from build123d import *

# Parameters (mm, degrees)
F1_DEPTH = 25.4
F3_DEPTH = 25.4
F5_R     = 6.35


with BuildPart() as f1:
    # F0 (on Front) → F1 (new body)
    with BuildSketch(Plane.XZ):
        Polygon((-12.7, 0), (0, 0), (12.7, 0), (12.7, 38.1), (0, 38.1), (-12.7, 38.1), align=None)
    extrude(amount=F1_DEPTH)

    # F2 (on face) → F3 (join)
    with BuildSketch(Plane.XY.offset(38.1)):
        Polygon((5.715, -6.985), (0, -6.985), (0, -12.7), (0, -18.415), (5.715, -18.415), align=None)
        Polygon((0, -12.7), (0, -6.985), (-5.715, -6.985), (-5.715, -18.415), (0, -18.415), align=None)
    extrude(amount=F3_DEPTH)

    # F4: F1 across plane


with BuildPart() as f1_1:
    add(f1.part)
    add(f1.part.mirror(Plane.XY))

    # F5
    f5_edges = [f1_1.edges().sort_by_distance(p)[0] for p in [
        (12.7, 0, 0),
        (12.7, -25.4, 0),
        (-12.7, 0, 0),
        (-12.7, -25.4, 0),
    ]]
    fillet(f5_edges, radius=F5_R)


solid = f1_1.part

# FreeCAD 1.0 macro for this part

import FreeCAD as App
import Part
import Sketcher
Q = App.Units.Quantity


def edges_at(feature, points):
    """Names of the edges that pass closest to the given points."""
    edges = feature.Shape.Edges
    near = lambda p: min(range(len(edges)), key=lambda i: edges[i].distToShape(Part.Vertex(*p))[0])
    return sorted({f"Edge{near(p) + 1}" for p in points})

doc = App.newDocument("Part")
body = doc.addObject("PartDesign::Body", "Body")

# Sketch on XZ plane
sketch1 = body.newObject("Sketcher::SketchObject", "Sketch")
sketch1.AttachmentSupport = (doc.getObject("XZ_Plane"), [""])
sketch1.MapMode = "FlatFace"
sketch1.addGeometry([
    Part.LineSegment(App.Vector(-13, 0, 0), App.Vector(13, 0, 0)),
    Part.LineSegment(App.Vector(13, 0, 0), App.Vector(13, 38, 0)),
    Part.LineSegment(App.Vector(13, 38, 0), App.Vector(-13, 38, 0)),
    Part.LineSegment(App.Vector(-13, 38, 0), App.Vector(-13, 0, 0)),
], False)
sketch1.addConstraint([
    Sketcher.Constraint("Coincident", 0, 2, 1, 1),
    Sketcher.Constraint("Coincident", 1, 2, 2, 1),
    Sketcher.Constraint("Coincident", 2, 2, 3, 1),
    Sketcher.Constraint("Coincident", 3, 2, 0, 1),
    Sketcher.Constraint("Horizontal", 0),
    Sketcher.Constraint("Vertical", 1),
    Sketcher.Constraint("Horizontal", 2),
    Sketcher.Constraint("Vertical", 3),
    Sketcher.Constraint("Symmetric", 0, 2, 3, 2, -1, 1),
    Sketcher.Constraint("DistanceX", 0, 1, 0, 2, Q("1 in")),
    Sketcher.Constraint("DistanceY", 1, 1, 1, 2, Q("1.5 in")),
])
pad1 = body.newObject("PartDesign::Pad", "Pad")
pad1.Profile = sketch1
pad1.Length = Q("1 in")

# Sketch on XY plane
sketch2 = body.newObject("Sketcher::SketchObject", "Sketch001")
sketch2.AttachmentSupport = (doc.getObject("XY_Plane"), [""])
sketch2.MapMode = "FlatFace"
sketch2.AttachmentOffset = App.Placement(App.Vector(0, 0, 1.5 * 25.4), App.Rotation())
sketch2.addGeometry([
    Part.LineSegment(App.Vector(6, -7, 0), App.Vector(-6, -7, 0)),
    Part.LineSegment(App.Vector(-6, -7, 0), App.Vector(-6, -18, 0)),
    Part.LineSegment(App.Vector(-6, -18, 0), App.Vector(6, -18, 0)),
    Part.LineSegment(App.Vector(6, -18, 0), App.Vector(6, -7, 0)),
], False)
sketch2.addConstraint([
    Sketcher.Constraint("Coincident", 0, 2, 1, 1),
    Sketcher.Constraint("Coincident", 1, 2, 2, 1),
    Sketcher.Constraint("Coincident", 2, 2, 3, 1),
    Sketcher.Constraint("Coincident", 3, 2, 0, 1),
    Sketcher.Constraint("Horizontal", 0),
    Sketcher.Constraint("Vertical", 1),
    Sketcher.Constraint("Horizontal", 2),
    Sketcher.Constraint("Vertical", 3),
    Sketcher.Constraint("Equal", 2, 1),
    Sketcher.Constraint("DistanceX", 0, 2, 0, 1, Q("0.45 in")),
    Sketcher.Constraint("DistanceX", 0, 2, -1, 1, Q("0.225 in")),
    Sketcher.Constraint("DistanceY", 0, 2, -1, 1, Q("0.275 in")),
])
pad2 = body.newObject("PartDesign::Pad", "Pad001")
pad2.Profile = sketch2
pad2.Length = Q("1 in")
body2 = doc.addObject("PartDesign::Body", "Body001")
doc.recompute()

body2.BaseFeature = body
doc.recompute()

mirroring = doc.addObject("Part::Mirroring", "Mirroring")
mirroring.Source = body
mirroring.Base = App.Vector(0, 0, 0)
mirroring.Normal = App.Vector(0, 0, 1)
body3 = doc.addObject("PartDesign::Body", "Body002")
body3.BaseFeature = mirroring
boolean = body2.newObject("PartDesign::Boolean", "Boolean")
boolean.Type = "Fuse"
boolean.addObjects([body3])
doc.recompute()

fillet = body2.newObject("PartDesign::Fillet", "Fillet")
fillet.Base = (boolean, edges_at(boolean, [
    (12.7, 0, 0),
    (12.7, -25.4, 0),
    (-12.7, 0, 0),
    (-12.7, -25.4, 0),
]))
fillet.Radius = Q("0.25 in")
mirroring.Visibility = False

doc.recompute()
